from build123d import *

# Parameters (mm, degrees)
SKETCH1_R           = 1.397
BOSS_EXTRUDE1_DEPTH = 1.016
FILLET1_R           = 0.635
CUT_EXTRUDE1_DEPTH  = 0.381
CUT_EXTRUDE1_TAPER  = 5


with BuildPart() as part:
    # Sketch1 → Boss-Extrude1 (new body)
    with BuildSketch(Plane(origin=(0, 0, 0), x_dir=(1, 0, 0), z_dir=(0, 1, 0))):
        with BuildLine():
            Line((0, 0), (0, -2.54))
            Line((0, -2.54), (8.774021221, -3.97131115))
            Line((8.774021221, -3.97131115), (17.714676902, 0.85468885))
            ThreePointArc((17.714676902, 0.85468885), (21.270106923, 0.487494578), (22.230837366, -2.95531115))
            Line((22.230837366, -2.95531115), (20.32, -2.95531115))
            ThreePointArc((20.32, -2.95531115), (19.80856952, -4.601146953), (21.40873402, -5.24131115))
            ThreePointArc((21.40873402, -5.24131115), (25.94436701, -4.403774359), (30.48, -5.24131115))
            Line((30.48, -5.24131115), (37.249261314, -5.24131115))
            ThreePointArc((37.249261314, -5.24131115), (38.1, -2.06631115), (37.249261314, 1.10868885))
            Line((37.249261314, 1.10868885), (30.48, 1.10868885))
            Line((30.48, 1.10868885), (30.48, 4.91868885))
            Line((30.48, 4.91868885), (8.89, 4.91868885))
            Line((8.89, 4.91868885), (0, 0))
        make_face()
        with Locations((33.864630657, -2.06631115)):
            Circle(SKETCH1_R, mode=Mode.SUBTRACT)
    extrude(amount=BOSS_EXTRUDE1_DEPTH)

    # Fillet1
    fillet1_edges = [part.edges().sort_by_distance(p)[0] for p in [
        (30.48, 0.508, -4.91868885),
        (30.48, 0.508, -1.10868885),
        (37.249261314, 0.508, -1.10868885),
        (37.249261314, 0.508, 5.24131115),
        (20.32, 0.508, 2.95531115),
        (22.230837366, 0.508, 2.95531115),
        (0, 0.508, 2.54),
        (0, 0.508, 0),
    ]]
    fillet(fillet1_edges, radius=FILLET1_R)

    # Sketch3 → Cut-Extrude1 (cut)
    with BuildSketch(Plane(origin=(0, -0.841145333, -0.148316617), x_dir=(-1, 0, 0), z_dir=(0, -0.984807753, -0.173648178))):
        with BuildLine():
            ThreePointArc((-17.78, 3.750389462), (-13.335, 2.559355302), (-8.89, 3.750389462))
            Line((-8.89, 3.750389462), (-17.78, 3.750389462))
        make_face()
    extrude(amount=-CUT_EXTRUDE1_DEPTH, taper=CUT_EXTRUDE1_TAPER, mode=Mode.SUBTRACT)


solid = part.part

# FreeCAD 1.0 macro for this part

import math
import FreeCAD as App
import Part
import Sketcher
Q = App.Units.Quantity


def edges_at(feature, points):
    """Names of the edges that pass closest to the given points."""
    edges = feature.Shape.Edges
    near = lambda p: min(range(len(edges)), key=lambda i: edges[i].distToShape(Part.Vertex(*p))[0])
    return sorted({f"Edge{near(p) + 1}" for p in points})

doc = App.newDocument("Part")
body = doc.addObject("PartDesign::Body", "Body")

# Sketch on XZ plane
sketch1 = body.newObject("Sketcher::SketchObject", "Sketch")
sketch1.AttachmentSupport = (doc.getObject("XZ_Plane"), [""])
sketch1.MapMode = "FlatFace"
sketch1.addGeometry(Part.LineSegment(App.Vector(0, 0, 0), App.Vector(0, 2.5, 0)), False)
sketch1.addGeometry(Part.LineSegment(App.Vector(0, 2.5, 0), App.Vector(8.8, 4, 0)), False)
sketch1.addGeometry(Part.LineSegment(App.Vector(8.8, 4, 0), App.Vector(17.7, -0.9, 0)), False)
sketch1.addGeometry(Part.ArcOfCircle(Part.Circle(App.Vector(19.2, 1.9, 0), App.Vector(0, 0, 1), 3.2), math.radians(-118), math.radians(19)), False)
sketch1.addGeometry(Part.LineSegment(App.Vector(22.2, 3, 0), App.Vector(20.3, 3, 0)), False)
sketch1.addGeometry(Part.ArcOfCircle(Part.Circle(App.Vector(21, 4.1, 0), App.Vector(0, 0, 1), 1.3), math.radians(69), math.radians(240)), False)
sketch1.addGeometry(Part.ArcOfCircle(Part.Circle(App.Vector(25.9, 17.1, 0), App.Vector(0, 0, 1), 12.7), math.radians(-111), math.radians(-69)), False)
sketch1.addGeometry(Part.LineSegment(App.Vector(30.5, 5.2, 0), App.Vector(37.2, 5.2, 0)), False)
sketch1.addGeometry(Part.ArcOfCircle(Part.Circle(App.Vector(31.8, 2.1, 0), App.Vector(0, 0, 1), 6.3), math.radians(-30), math.radians(30)), False)
sketch1.addGeometry(Part.LineSegment(App.Vector(37.2, -1.1, 0), App.Vector(30.5, -1.1, 0)), False)
sketch1.addGeometry(Part.LineSegment(App.Vector(30.5, -1.1, 0), App.Vector(30.5, -4.9, 0)), False)
sketch1.addGeometry(Part.LineSegment(App.Vector(30.5, -4.9, 0), App.Vector(8.9, -4.9, 0)), False)
sketch1.addGeometry(Part.LineSegment(App.Vector(8.9, -4.9, 0), App.Vector(0, 0, 0)), False)
sketch1.addGeometry(Part.Circle(App.Vector(33.9, 2.1, 0), App.Vector(0, 0, 1), 1.4), False)
sketch1.addConstraint(Sketcher.Constraint("Coincident", 0, 2, 1, 1))
sketch1.addConstraint(Sketcher.Constraint("Coincident", 1, 2, 2, 1))
sketch1.addConstraint(Sketcher.Constraint("Tangent", 2, 2, 3, 1))
sketch1.addConstraint(Sketcher.Constraint("Coincident", 3, 2, 4, 1))
sketch1.addConstraint(Sketcher.Constraint("Coincident", 4, 2, 5, 2))
sketch1.addConstraint(Sketcher.Constraint("Tangent", 5, 1, 6, 1))
sketch1.addConstraint(Sketcher.Constraint("Coincident", 6, 2, 7, 1))
sketch1.addConstraint(Sketcher.Constraint("Coincident", 7, 2, 8, 2))
sketch1.addConstraint(Sketcher.Constraint("Coincident", 8, 1, 9, 1))
sketch1.addConstraint(Sketcher.Constraint("Coincident", 9, 2, 10, 1))
sketch1.addConstraint(Sketcher.Constraint("Coincident", 10, 2, 11, 1))
sketch1.addConstraint(Sketcher.Constraint("Coincident", 11, 2, 12, 1))
sketch1.addConstraint(Sketcher.Constraint("Coincident", 12, 2, 0, 1))
sketch1.addConstraint(Sketcher.Constraint("Vertical", 0))
sketch1.addConstraint(Sketcher.Constraint("Horizontal", 4))
sketch1.addConstraint(Sketcher.Constraint("Horizontal", 7))
sketch1.addConstraint(Sketcher.Constraint("Horizontal", 9))
sketch1.addConstraint(Sketcher.Constraint("Vertical", 10))
sketch1.addConstraint(Sketcher.Constraint("Horizontal", 11))
sketch1.addConstraint(Sketcher.Constraint("Coincident", 12, 2, -1, 1))
sketch1.addConstraint(Sketcher.Constraint("Horizontal", 8, 3, 13, 3))
sketch1.addConstraint(Sketcher.Constraint("Horizontal", 5, 1, 6, 2))
sketch1.addConstraint(Sketcher.Constraint("Vertical", 7, 2, 8, 1))
sketch1.addConstraint(Sketcher.Constraint("Vertical", 6, 2, 9, 2))
sketch1.addConstraint(Sketcher.Constraint("Equal", 2, 12))
sketch1.addConstraint(Sketcher.Constraint("Radius", 6, Q("0.5 in")))
sketch1.addConstraint(Sketcher.Constraint("Diameter", 13, Q("0.11 in")))
sketch1.addConstraint(Sketcher.Constraint("Radius", 5, Q("0.05 in")))
sketch1.addConstraint(Sketcher.Constraint("Radius", 8, Q("0.25 in")))
sketch1.addConstraint(Sketcher.Constraint("DistanceY", 0, 1, 0, 2, Q("0.1 in")))
sketch1.addConstraint(Sketcher.Constraint("Radius", 3, Q("0.125 in")))
sketch1.addConstraint(Sketcher.Constraint("Distance", 2, Q("0.4 in")))
sketch1.addConstraint(Sketcher.Constraint("DistanceX", 11, 2, 11, 1, Q("0.85 in")))
sketch1.addConstraint(Sketcher.Constraint("DistanceY", 10, 2, 10, 1, Q("0.15 in")))
sketch1.addConstraint(Sketcher.Constraint("DistanceX", -1, 1, 4, 2, Q("0.8 in")))
sketch1.addConstraint(Sketcher.Constraint("DistanceX", -1, 1, 6, 2, Q("1.2 in")))
sketch1.addConstraint(Sketcher.Constraint("DistanceY", 10, 2, 6, 2, Q("0.4 in")))
sketch1.addConstraint(Sketcher.Constraint("Distance", 1, Q("0.35 in")))
sketch1.addConstraint(Sketcher.Constraint("DistanceX", -1, 1, 8, 3, Q("1.25 in")))
sketch1.addConstraint(Sketcher.Constraint("DistanceY", 2, 2, 1, 2, Q("0.19 in")))
sketch1.addConstraint(Sketcher.Constraint("DistanceY", 2, 2, 3, 2, Q("0.15 in")))
sketch1.addConstraint(Sketcher.Constraint("DistanceY", 3, 2, 5, 1, Q("0.09 in")))
sketch1.addConstraint(Sketcher.Constraint("DistanceX", -1, 1, 13, 3, Q("33.864631 mm")))
pad1 = body.newObject("PartDesign::Pad", "Pad")
pad1.Profile = sketch1
pad1.Length = Q("0.04 in")
pad1.Reversed = True
doc.recompute()

fillet = body.newObject("PartDesign::Fillet", "Fillet")
fillet.Base = (pad1, edges_at(pad1, [
    (30.48, 0.508, -4.919),
    (30.48, 0.508, -1.109),
    (37.249, 0.508, -1.109),
    (37.249, 0.508, 5.241),
    (20.32, 0.508, 2.955),
    (22.231, 0.508, 2.955),
    (0, 0.508, 2.54),
    (0, 0.508, 0),
]))
fillet.Radius = Q("0.025 in")

# Sketch on an angled plane
sketch2 = body.newObject("Sketcher::SketchObject", "Sketch001")
sketch2.Placement = App.Placement(App.Vector(0, -0.841145, -0.148317), App.Rotation(App.Vector(-1, 0, 0), App.Vector(0, 0.173648178, -0.984807753), App.Vector(0, -0.984807753, -0.173648178), "ZXY"))
sketch2.addGeometry(Part.ArcOfCircle(Part.Circle(App.Vector(-13, 11, 0), App.Vector(0, 0, 1), 9), math.radians(-120), math.radians(-60)), False)
sketch2.addGeometry(Part.LineSegment(App.Vector(-9, 4, 0), App.Vector(-18, 4, 0)), False)
sketch2.addConstraint(Sketcher.Constraint("Coincident", 0, 1, 1, 2))
sketch2.addConstraint(Sketcher.Constraint("Coincident", 1, 1, 0, 2))
sketch2.addConstraint(Sketcher.Constraint("Horizontal", 1))
sketch2.addConstraint(Sketcher.Constraint("Radius", 0, Q("0.35 in")))
sketch2.addConstraint(Sketcher.Constraint("DistanceX", 1, 2, 1, 1, Q("0.35 in")))
sketch2.addConstraint(Sketcher.Constraint("DistanceX", 0, 1, -1, 1, Q("0.7 in")))
sketch2.addConstraint(Sketcher.Constraint("DistanceY", -1, 1, 0, 1, Q("3.750389 mm")))
pocket1 = body.newObject("PartDesign::Pocket", "Pocket")
pocket1.Profile = sketch2
pocket1.Length = Q("0.015 in")
pocket1.TaperAngle = -5

doc.recompute()
